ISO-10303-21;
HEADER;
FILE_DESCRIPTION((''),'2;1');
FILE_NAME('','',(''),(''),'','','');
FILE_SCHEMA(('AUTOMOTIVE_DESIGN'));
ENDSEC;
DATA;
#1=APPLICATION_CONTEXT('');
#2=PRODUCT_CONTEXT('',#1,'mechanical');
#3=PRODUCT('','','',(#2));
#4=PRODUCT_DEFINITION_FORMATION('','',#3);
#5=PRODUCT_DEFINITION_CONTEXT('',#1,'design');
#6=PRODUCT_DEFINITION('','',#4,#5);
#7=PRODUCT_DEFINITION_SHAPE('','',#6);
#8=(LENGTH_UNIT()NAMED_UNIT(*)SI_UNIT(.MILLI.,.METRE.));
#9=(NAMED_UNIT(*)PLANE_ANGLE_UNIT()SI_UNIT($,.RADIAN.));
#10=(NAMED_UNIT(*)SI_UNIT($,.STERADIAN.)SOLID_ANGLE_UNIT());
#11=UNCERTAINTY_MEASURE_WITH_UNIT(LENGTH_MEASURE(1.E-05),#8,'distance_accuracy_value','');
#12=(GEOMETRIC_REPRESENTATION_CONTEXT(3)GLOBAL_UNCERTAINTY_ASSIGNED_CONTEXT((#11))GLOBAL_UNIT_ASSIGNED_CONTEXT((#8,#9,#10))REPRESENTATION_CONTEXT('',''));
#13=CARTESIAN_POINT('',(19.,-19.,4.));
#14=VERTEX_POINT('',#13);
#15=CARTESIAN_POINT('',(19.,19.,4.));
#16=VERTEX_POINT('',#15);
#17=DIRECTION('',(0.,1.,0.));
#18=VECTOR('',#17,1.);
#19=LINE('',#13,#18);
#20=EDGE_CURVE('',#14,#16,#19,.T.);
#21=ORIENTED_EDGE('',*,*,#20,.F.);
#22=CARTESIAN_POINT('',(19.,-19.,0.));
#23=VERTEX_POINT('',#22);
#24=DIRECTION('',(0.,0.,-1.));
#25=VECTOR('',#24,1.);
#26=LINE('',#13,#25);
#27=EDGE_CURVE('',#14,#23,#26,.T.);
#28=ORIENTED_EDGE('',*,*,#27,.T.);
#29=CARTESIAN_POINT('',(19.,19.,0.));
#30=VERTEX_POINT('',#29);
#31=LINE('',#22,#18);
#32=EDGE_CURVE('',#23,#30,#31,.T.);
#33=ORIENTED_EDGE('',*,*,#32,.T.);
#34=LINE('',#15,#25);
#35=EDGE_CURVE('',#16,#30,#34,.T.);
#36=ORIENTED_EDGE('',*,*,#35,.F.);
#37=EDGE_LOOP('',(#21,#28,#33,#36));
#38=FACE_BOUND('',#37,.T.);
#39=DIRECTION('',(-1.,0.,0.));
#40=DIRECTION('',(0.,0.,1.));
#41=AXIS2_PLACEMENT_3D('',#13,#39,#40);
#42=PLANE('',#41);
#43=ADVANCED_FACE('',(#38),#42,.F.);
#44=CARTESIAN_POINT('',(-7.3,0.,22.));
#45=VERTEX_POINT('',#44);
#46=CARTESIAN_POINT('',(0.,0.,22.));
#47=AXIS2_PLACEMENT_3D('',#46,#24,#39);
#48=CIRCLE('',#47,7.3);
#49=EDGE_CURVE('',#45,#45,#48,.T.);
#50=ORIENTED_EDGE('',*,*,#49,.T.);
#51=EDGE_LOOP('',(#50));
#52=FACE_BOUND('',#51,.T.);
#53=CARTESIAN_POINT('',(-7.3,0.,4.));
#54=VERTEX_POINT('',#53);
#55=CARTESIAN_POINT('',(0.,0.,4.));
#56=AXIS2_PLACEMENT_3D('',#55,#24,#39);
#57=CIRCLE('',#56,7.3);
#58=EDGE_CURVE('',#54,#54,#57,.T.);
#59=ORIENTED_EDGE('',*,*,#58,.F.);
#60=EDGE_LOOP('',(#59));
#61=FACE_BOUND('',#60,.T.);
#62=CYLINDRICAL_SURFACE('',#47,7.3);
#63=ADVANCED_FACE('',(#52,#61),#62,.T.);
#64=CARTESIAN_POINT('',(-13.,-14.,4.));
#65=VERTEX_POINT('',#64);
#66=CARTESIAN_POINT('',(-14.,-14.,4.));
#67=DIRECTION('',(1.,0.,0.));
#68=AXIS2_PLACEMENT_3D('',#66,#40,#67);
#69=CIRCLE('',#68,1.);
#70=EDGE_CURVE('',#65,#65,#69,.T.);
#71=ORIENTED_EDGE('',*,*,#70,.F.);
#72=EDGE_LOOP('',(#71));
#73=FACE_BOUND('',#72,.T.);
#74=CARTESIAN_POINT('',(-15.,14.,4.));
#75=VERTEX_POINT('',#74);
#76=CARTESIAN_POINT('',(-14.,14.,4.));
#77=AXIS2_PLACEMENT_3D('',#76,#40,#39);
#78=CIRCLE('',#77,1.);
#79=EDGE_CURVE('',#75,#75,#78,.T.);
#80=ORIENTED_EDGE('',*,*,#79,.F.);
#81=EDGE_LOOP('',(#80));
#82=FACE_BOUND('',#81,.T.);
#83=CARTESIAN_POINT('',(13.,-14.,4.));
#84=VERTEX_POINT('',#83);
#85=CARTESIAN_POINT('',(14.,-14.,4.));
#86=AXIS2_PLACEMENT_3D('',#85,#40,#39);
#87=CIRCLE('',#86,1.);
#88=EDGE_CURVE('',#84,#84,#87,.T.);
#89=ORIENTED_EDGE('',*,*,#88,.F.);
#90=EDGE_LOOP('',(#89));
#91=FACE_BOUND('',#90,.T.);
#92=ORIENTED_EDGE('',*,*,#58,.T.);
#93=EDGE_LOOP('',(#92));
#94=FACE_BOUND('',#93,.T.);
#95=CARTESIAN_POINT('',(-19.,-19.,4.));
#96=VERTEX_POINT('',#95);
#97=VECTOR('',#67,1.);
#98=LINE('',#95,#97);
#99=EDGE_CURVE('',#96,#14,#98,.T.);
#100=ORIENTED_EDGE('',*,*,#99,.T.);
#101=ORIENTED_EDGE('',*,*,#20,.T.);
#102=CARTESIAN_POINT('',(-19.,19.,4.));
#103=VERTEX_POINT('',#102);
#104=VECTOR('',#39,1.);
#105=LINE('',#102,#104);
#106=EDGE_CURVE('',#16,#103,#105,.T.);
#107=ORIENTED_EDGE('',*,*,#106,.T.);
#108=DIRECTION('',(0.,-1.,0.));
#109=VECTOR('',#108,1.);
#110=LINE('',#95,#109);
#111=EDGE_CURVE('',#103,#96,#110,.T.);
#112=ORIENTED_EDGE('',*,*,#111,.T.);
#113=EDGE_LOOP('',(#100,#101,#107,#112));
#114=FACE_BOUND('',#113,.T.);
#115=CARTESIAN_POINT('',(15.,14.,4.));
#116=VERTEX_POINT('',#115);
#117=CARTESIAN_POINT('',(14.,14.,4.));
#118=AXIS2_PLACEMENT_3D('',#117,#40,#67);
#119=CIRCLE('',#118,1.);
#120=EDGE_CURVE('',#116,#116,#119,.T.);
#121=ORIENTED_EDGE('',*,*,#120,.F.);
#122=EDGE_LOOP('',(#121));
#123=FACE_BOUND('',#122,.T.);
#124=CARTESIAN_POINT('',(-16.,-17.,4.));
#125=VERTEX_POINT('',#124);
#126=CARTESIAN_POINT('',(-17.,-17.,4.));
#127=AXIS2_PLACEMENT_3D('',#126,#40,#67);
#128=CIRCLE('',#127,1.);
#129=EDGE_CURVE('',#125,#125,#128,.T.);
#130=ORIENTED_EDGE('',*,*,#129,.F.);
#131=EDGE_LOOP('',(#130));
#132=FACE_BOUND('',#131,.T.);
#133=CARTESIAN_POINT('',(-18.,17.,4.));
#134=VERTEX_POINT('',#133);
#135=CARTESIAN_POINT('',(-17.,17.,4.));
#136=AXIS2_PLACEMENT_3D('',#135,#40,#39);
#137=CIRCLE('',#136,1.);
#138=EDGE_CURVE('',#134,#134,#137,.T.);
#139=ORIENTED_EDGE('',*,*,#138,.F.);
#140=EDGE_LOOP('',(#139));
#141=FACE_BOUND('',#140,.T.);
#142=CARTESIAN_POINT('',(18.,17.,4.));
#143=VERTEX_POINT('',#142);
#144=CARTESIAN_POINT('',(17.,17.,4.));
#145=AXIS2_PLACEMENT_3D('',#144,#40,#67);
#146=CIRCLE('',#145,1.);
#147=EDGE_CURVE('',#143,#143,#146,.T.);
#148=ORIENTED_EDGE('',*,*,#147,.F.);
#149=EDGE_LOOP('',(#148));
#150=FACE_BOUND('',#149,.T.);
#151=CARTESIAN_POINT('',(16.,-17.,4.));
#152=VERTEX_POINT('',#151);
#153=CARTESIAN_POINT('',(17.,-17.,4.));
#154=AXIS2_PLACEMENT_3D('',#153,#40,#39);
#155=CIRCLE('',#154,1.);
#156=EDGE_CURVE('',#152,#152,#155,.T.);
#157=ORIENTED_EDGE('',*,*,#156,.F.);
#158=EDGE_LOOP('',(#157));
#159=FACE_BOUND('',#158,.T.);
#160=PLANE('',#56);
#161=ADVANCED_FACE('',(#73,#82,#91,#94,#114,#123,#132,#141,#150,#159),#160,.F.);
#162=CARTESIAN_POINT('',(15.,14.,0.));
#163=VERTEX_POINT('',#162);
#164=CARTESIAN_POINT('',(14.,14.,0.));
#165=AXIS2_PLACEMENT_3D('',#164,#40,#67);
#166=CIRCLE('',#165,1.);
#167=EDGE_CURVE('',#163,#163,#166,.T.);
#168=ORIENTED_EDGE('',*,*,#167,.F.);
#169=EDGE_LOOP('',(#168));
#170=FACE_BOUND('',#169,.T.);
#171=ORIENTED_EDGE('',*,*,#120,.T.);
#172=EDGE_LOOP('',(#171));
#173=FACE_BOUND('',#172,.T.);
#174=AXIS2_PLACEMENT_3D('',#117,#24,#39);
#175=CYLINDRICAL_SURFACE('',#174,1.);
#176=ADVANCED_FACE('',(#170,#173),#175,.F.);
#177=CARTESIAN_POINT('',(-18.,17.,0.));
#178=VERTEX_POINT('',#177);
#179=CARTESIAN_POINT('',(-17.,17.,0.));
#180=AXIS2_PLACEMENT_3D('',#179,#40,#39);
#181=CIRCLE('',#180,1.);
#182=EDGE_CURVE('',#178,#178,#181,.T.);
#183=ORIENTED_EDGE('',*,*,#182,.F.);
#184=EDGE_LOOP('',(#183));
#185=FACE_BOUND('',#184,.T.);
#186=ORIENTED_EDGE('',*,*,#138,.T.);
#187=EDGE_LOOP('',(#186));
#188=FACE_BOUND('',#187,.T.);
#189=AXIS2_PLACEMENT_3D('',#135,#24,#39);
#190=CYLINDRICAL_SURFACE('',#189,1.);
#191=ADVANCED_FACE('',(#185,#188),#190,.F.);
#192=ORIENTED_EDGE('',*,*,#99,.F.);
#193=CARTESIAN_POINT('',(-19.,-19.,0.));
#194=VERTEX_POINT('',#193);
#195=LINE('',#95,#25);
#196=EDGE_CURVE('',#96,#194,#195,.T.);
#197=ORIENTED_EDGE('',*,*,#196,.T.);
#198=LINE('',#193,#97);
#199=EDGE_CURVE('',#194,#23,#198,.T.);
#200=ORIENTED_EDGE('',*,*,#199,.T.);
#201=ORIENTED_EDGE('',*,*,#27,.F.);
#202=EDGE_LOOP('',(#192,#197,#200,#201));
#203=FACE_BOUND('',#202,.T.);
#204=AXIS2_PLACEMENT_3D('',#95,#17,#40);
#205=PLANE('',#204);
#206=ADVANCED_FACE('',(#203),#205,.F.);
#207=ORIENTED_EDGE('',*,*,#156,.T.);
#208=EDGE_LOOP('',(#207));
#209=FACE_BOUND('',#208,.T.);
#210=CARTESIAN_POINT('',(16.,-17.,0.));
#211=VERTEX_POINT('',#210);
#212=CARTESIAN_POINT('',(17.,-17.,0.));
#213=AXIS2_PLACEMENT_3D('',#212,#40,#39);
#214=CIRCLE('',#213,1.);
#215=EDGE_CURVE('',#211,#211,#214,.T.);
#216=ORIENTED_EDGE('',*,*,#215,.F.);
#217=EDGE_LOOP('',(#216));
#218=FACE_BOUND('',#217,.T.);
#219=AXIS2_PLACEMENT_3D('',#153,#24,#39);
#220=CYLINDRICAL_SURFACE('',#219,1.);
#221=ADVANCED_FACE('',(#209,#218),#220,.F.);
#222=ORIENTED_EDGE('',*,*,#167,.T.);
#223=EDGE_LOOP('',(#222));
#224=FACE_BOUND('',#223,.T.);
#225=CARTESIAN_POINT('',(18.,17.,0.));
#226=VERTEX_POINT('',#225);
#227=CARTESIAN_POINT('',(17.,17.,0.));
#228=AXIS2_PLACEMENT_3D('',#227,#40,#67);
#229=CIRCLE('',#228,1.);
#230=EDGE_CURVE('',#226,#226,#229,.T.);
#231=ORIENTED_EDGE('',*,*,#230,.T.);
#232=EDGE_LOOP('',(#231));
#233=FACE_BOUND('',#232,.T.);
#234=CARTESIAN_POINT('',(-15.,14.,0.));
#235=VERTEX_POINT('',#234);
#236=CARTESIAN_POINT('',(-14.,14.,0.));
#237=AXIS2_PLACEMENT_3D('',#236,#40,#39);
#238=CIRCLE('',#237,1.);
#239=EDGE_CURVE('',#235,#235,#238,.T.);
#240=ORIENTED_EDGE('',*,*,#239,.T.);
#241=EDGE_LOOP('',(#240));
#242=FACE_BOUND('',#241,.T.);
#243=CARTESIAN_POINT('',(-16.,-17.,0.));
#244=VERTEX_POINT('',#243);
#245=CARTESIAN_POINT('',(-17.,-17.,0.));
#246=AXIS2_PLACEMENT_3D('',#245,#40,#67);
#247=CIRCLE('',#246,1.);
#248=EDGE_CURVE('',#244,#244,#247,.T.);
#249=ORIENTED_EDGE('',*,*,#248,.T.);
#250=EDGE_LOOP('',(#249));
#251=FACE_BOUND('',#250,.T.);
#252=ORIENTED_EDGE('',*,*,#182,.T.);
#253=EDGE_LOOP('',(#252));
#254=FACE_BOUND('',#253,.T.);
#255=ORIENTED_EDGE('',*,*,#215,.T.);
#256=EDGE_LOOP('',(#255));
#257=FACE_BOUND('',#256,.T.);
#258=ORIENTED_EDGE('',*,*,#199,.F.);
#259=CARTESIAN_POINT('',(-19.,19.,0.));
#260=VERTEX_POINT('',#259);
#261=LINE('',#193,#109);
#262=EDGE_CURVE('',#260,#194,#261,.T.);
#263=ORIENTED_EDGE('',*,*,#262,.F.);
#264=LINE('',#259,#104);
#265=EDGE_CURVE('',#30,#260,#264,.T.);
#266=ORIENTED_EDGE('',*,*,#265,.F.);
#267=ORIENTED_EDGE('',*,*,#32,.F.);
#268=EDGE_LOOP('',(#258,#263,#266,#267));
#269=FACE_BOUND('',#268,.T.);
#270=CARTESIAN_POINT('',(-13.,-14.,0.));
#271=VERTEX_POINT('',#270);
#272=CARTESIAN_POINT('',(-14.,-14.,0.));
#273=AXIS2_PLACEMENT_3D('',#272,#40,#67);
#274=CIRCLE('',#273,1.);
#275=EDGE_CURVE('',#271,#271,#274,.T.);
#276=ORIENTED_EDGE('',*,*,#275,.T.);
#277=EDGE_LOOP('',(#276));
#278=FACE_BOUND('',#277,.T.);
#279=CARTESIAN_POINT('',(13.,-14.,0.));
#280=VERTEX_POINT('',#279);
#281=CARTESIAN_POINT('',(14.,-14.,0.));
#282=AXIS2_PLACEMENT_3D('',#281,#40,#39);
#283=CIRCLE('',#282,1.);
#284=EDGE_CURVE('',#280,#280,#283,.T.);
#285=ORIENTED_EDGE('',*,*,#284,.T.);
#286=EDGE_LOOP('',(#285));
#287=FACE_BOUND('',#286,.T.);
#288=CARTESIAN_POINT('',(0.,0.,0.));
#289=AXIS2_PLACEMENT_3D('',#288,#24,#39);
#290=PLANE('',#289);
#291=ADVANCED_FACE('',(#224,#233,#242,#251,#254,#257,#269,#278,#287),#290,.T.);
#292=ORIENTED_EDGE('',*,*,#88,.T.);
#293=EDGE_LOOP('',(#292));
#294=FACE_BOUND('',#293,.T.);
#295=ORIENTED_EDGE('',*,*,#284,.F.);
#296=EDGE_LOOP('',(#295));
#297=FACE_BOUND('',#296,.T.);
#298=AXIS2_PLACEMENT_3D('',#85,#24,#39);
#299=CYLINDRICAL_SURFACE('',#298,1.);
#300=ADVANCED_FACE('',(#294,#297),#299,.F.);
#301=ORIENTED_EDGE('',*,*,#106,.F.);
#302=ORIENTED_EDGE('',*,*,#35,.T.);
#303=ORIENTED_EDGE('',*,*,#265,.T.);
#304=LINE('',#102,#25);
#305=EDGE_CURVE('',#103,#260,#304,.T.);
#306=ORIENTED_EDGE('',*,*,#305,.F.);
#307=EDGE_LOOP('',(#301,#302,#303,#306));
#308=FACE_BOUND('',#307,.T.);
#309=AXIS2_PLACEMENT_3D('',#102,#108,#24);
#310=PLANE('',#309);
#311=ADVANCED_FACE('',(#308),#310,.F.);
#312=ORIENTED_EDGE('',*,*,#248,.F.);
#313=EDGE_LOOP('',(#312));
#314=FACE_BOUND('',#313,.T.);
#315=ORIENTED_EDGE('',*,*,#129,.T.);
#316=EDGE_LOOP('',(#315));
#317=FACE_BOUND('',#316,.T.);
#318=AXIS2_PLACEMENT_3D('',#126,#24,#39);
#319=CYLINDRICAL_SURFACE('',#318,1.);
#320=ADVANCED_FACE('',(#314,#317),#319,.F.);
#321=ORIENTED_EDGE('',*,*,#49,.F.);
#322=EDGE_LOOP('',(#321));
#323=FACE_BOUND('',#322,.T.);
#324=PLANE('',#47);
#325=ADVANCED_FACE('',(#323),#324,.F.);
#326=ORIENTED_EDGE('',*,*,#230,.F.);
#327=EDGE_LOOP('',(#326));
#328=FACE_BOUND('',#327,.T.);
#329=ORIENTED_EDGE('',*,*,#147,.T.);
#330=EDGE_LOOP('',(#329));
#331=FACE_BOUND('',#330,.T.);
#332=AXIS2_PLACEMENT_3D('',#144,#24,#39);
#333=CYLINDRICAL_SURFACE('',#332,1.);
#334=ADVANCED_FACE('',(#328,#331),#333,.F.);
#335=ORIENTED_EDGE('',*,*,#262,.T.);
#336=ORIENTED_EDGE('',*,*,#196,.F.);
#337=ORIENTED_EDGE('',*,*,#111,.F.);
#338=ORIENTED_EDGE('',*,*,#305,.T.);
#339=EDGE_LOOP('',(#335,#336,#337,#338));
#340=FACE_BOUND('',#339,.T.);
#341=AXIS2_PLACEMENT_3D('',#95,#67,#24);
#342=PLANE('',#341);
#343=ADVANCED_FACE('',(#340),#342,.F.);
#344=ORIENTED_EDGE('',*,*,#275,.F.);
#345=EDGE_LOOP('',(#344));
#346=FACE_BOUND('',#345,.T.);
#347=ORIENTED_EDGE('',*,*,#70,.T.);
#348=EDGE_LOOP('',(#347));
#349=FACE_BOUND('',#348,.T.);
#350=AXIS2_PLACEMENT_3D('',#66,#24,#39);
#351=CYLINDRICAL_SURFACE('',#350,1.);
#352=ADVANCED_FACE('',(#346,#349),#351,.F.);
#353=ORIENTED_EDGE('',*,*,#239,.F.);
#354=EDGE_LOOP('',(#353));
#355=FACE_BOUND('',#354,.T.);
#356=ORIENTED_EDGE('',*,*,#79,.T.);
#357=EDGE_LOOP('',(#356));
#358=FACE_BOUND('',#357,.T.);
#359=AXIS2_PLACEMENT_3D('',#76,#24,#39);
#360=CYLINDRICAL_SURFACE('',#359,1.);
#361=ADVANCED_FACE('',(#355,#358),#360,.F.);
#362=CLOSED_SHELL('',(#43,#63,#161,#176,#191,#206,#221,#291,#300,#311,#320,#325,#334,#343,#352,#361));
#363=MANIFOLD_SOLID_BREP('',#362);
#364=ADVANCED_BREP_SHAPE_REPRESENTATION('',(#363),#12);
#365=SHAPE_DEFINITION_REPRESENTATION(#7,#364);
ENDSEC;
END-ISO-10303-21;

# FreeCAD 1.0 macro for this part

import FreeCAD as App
import Part
import Sketcher
Q = App.Units.Quantity

doc = App.newDocument("Part")
params = doc.addObject("Spreadsheet::Sheet", "Params")
for row, (alias, value) in enumerate([
    ("sketch1_diameter", "2 mm"),
    ("sketch1_width", "38 mm"),
    ("pad1_length", "4 mm"),
    ("sketch2_diameter", "14.6 mm"),
    ("pad2_length", "18 mm"),
], start=1):
    params.set(f"A{row}", alias)
    params.set(f"B{row}", "=" + value)
    params.setAlias(f"B{row}", alias)

body = doc.addObject("PartDesign::Body", "Body")

# Sketch on XY plane
sketch1 = body.newObject("Sketcher::SketchObject", "Sketch")
sketch1.AttachmentSupport = (doc.getObject("XY_Plane"), [""])
sketch1.MapMode = "FlatFace"
sketch1.addGeometry([
    Part.LineSegment(App.Vector(-19, 19, 0), App.Vector(-19, -19, 0)),  # 0
    Part.LineSegment(App.Vector(-19, -19, 0), App.Vector(19, -19, 0)),  # 1
    Part.LineSegment(App.Vector(19, -19, 0), App.Vector(19, 19, 0)),  # 2
    Part.LineSegment(App.Vector(19, 19, 0), App.Vector(-19, 19, 0)),  # 3
    Part.Circle(App.Vector(-17, -17, 0), App.Vector(0, 0, 1), 1),  # 4
    Part.Circle(App.Vector(-14, -14, 0), App.Vector(0, 0, 1), 1),  # 5
    Part.Circle(App.Vector(17, -17, 0), App.Vector(0, 0, 1), 1),  # 6
    Part.Circle(App.Vector(14, -14, 0), App.Vector(0, 0, 1), 1),  # 7
    Part.Circle(App.Vector(-14, 14, 0), App.Vector(0, 0, 1), 1),  # 8
    Part.Circle(App.Vector(-17, 17, 0), App.Vector(0, 0, 1), 1),  # 9
    Part.Circle(App.Vector(14, 14, 0), App.Vector(0, 0, 1), 1),  # 10
    Part.Circle(App.Vector(17, 17, 0), App.Vector(0, 0, 1), 1),  # 11
], False)
sketch1.addConstraint([
    Sketcher.Constraint("Coincident", 0, 2, 1, 1),
    Sketcher.Constraint("Coincident", 1, 2, 2, 1),
    Sketcher.Constraint("Coincident", 2, 2, 3, 1),
    Sketcher.Constraint("Coincident", 3, 2, 0, 1),
    Sketcher.Constraint("Vertical", 0),
    Sketcher.Constraint("Horizontal", 1),
    Sketcher.Constraint("Vertical", 2),
    Sketcher.Constraint("Horizontal", 3),
    Sketcher.Constraint("Equal", 4, 5),
    Sketcher.Constraint("Equal", 5, 6),
    Sketcher.Constraint("Equal", 6, 7),
    Sketcher.Constraint("Equal", 7, 8),
    Sketcher.Constraint("Equal", 8, 9),
    Sketcher.Constraint("Equal", 9, 10),
    Sketcher.Constraint("Equal", 10, 11),
    Sketcher.Constraint("Symmetric", 7, 3, 8, 3, -1, 1),
    Sketcher.Constraint("Symmetric", 6, 3, 9, 3, -1, 1),
    Sketcher.Constraint("Symmetric", 5, 3, 10, 3, -1, 1),
    Sketcher.Constraint("Symmetric", 4, 3, 11, 3, -1, 1),
    Sketcher.Constraint("Symmetric", 0, 2, 2, 2, -1, 1),
    Sketcher.Constraint("Symmetric", 4, 3, 6, 3, -2),
    Sketcher.Constraint("Symmetric", 5, 3, 7, 3, -2),
    Sketcher.Constraint("Equal", 3, 0),
    Sketcher.Constraint("Diameter", 4, Q("2 mm")),
    Sketcher.Constraint("DistanceX", 1, 1, 1, 2, Q("38 mm")),
    Sketcher.Constraint("DistanceX", 4, 3, -1, 1, Q("17 mm")),
    Sketcher.Constraint("DistanceY", 4, 3, -1, 1, Q("17 mm")),
    Sketcher.Constraint("DistanceX", 5, 3, -1, 1, Q("14 mm")),
    Sketcher.Constraint("DistanceY", 5, 3, -1, 1, Q("14 mm")),
])
sketch1.setExpression("Constraints[23]", "Params.sketch1_diameter")
sketch1.setExpression("Constraints[24]", "Params.sketch1_width")
pad1 = body.newObject("PartDesign::Pad", "Pad")
pad1.Profile = sketch1
pad1.setExpression("Length", "Params.pad1_length")

# Sketch on XY plane
sketch2 = body.newObject("Sketcher::SketchObject", "Sketch001")
sketch2.AttachmentSupport = (doc.getObject("XY_Plane"), [""])
sketch2.MapMode = "FlatFace"
sketch2.AttachmentOffset = App.Placement(App.Vector(0, 0, 4), App.Rotation())
sketch2.addGeometry(Part.Circle(App.Vector(0, 0, 0), App.Vector(0, 0, 1), 7.3), False)
sketch2.addConstraint([
    Sketcher.Constraint("Coincident", 0, 3, -1, 1),
    Sketcher.Constraint("Diameter", 0, Q("14.6 mm")),
])
sketch2.setExpression("Constraints[1]", "Params.sketch2_diameter")
pad2 = body.newObject("PartDesign::Pad", "Pad001")
pad2.Profile = sketch2
pad2.setExpression("Length", "Params.pad2_length")

doc.recompute()
